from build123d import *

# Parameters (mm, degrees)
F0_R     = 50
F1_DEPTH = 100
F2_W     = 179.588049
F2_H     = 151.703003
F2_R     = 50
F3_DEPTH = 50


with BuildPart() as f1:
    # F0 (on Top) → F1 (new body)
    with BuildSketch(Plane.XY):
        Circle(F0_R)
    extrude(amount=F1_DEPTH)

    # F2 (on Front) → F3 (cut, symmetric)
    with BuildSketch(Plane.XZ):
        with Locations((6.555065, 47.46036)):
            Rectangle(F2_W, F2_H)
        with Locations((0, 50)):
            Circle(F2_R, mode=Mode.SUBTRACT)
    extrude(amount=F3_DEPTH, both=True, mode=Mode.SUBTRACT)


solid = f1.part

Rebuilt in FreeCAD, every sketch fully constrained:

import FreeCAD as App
import Part
import Sketcher

V = App.Vector


def add_polygon(sketch, points):
    """Adds a closed chain of lines whose ends are joined by coincident constraints."""
    first, n = sketch.GeometryCount, len(points)
    for a, b in zip(points, points[1:] + points[:1]):
        sketch.addGeometry(Part.LineSegment(App.Vector(*a, 0), App.Vector(*b, 0)), False)
    for i in range(n):
        sketch.addConstraint(Sketcher.Constraint("Coincident", first + i, 2, first + (i + 1) % n, 1))

doc = App.newDocument("Part")
body = doc.addObject("PartDesign::Body", "Body")

# Sketch on XY plane
sketch1 = doc.addObject("Sketcher::SketchObject", "Sketch")
body.addObject(sketch1)
sketch1.AttachmentSupport = (doc.XY_Plane, [""])
sketch1.MapMode = "FlatFace"
sketch1.addGeometry(Part.Circle(V(0, 0, 0), V(0, 0, 1), 50), False)
sketch1.addConstraint(Sketcher.Constraint("Coincident", 0, 3, -1, 1))
sketch1.addConstraint(Sketcher.Constraint("Diameter", 0, 100.0))
pad1 = doc.addObject("PartDesign::Pad", "Pad")
body.addObject(pad1)
pad1.Profile = sketch1
pad1.Length = 100

# Sketch on XZ plane
sketch2 = doc.addObject("Sketcher::SketchObject", "Sketch001")
body.addObject(sketch2)
sketch2.AttachmentSupport = (doc.XZ_Plane, [""])
sketch2.MapMode = "FlatFace"
add_polygon(sketch2, [(-83, 123), (-83, -28), (96, -28), (96, 123)])  # lines 0-3
sketch2.addGeometry(Part.Circle(V(0, 50, 0), V(0, 0, 1), 50), False)  # 4
sketch2.addConstraint(Sketcher.Constraint("Vertical", 0))
sketch2.addConstraint(Sketcher.Constraint("Horizontal", 1))
sketch2.addConstraint(Sketcher.Constraint("Vertical", 2))
sketch2.addConstraint(Sketcher.Constraint("Horizontal", 3))
sketch2.addConstraint(Sketcher.Constraint("PointOnObject", 4, 3, -2))
sketch2.addConstraint(Sketcher.Constraint("Diameter", 4, 100.0))
sketch2.addConstraint(Sketcher.Constraint("DistanceY", -1, 1, 4, 3, 50.0))
sketch2.addConstraint(Sketcher.Constraint("DistanceX", 1, 1, 1, 2, 179.588049))
sketch2.addConstraint(Sketcher.Constraint("DistanceY", 0, 2, 0, 1, 151.703003))
sketch2.addConstraint(Sketcher.Constraint("DistanceX", 0, 2, -1, 1, 83.23896))
sketch2.addConstraint(Sketcher.Constraint("DistanceY", 0, 2, -1, 1, 28.391141))
pocket1 = doc.addObject("PartDesign::Pocket", "Pocket")
body.addObject(pocket1)
pocket1.Profile = sketch2
pocket1.Length = 100
pocket1.Midplane = True

doc.recompute()
